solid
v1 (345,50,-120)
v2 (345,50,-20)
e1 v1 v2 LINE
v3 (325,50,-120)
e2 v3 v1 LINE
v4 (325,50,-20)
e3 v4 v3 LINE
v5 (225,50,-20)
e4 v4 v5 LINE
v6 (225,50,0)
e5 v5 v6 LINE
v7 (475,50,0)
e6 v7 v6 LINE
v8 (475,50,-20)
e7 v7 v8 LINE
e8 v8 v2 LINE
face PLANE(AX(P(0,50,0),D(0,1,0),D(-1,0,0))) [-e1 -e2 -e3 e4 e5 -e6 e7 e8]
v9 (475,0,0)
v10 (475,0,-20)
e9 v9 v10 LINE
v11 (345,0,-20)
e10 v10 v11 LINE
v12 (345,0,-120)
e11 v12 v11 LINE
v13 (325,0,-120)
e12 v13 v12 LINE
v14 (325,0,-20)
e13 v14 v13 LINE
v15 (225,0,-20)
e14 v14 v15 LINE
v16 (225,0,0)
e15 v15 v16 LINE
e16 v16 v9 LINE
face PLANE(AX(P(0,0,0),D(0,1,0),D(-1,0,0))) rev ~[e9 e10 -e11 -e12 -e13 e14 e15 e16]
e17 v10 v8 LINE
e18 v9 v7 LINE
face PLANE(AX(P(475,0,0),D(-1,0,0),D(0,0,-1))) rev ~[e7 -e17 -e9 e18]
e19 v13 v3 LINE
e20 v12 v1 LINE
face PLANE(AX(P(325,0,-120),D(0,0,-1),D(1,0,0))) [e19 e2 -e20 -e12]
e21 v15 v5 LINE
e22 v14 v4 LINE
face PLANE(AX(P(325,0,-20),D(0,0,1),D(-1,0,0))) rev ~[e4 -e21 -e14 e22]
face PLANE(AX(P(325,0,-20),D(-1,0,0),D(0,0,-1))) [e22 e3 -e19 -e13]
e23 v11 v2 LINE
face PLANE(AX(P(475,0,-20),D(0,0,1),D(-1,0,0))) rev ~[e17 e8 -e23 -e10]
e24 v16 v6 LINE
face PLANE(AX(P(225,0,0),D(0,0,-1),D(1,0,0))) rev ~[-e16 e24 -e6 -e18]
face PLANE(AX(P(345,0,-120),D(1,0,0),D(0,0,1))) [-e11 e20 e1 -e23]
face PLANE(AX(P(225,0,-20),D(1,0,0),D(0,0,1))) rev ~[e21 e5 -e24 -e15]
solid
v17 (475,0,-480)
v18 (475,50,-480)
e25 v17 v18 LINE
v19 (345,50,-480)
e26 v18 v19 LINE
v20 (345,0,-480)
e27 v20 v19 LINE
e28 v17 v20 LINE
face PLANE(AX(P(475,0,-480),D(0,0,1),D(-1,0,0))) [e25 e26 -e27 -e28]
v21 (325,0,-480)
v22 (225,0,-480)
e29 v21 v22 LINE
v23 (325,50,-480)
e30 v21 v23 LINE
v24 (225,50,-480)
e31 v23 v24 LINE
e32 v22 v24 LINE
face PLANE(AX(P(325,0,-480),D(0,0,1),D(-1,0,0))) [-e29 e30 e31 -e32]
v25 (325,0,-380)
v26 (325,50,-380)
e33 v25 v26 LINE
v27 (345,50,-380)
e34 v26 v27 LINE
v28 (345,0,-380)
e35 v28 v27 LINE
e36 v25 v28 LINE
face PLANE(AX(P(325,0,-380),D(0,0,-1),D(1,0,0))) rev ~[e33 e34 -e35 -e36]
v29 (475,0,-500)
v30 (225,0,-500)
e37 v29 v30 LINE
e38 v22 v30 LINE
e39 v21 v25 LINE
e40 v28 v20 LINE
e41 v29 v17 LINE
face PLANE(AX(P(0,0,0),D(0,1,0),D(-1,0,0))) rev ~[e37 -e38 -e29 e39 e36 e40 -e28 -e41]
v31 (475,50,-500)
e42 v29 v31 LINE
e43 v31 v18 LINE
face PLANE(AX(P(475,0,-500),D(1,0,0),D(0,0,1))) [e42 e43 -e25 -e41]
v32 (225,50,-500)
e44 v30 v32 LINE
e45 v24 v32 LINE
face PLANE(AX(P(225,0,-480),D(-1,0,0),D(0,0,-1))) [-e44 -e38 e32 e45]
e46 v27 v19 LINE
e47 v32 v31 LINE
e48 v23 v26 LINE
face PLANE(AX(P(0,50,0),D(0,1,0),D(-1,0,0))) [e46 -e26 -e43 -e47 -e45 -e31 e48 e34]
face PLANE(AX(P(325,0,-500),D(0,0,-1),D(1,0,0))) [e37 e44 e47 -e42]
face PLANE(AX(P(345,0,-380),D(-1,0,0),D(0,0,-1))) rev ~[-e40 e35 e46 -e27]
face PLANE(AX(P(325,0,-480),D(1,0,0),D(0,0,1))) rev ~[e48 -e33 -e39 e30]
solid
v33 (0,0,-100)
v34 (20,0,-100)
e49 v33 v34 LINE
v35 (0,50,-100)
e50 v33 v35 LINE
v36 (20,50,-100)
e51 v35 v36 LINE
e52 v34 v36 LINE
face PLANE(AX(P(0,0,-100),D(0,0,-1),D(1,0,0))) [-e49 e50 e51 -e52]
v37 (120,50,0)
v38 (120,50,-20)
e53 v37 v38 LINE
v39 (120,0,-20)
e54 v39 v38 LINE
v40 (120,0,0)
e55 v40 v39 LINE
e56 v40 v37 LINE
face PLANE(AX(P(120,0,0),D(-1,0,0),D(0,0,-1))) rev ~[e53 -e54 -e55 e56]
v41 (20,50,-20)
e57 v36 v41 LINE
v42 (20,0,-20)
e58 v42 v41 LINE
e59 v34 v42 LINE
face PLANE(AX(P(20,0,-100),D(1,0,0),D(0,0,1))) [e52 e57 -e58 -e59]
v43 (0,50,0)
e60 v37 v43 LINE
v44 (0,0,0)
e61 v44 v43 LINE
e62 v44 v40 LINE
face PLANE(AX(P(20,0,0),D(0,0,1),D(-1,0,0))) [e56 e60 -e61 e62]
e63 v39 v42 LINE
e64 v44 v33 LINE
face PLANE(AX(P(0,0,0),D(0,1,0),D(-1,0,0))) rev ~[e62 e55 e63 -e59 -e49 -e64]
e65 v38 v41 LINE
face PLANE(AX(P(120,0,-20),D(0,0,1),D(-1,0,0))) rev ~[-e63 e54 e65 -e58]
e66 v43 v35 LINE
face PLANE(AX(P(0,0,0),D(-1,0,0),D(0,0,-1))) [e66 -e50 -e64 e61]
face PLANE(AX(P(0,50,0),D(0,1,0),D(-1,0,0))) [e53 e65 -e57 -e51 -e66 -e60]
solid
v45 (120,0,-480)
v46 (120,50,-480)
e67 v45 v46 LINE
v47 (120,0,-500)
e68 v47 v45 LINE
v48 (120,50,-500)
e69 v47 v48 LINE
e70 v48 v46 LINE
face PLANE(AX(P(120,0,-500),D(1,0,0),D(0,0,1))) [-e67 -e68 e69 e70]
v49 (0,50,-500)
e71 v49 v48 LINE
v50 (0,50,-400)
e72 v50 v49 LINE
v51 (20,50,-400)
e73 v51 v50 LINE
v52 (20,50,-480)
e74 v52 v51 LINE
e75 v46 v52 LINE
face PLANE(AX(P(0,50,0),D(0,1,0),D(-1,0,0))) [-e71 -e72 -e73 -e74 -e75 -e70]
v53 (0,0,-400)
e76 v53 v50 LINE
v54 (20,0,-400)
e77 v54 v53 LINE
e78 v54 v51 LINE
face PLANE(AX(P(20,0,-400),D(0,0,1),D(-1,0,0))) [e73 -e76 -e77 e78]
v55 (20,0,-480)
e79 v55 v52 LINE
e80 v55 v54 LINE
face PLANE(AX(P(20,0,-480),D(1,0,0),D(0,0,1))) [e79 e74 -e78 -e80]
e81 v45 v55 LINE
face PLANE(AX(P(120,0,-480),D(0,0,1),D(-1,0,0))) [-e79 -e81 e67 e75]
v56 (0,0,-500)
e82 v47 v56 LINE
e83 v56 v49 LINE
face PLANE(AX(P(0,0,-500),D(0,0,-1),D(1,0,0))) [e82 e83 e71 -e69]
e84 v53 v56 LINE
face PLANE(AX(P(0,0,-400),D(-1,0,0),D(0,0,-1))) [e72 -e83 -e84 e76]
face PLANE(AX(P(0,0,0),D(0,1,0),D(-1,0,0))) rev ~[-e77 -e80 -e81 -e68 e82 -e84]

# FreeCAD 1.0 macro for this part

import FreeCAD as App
import Part
import Sketcher

V = App.Vector


def add_polygon(sketch, points):
    """Adds a closed chain of lines whose ends are joined by coincident constraints."""
    first, n = sketch.GeometryCount, len(points)
    for a, b in zip(points, points[1:] + points[:1]):
        sketch.addGeometry(Part.LineSegment(App.Vector(*a, 0), App.Vector(*b, 0)), False)
    for i in range(n):
        sketch.addConstraint(Sketcher.Constraint("Coincident", first + i, 2, first + (i + 1) % n, 1))

doc = App.newDocument("Part")
body = doc.addObject("PartDesign::Body", "Body")
body.AllowCompound = True

sketch1 = body.newObject("Sketcher::SketchObject", "Sketch")
sketch1.AttachmentSupport = (doc.getObject("XZ_Plane"), [""])
sketch1.MapMode = "FlatFace"
add_polygon(sketch1, [(0, -500), (0, -400), (20, -400), (20, -480), (120, -480), (120, -500)])
add_polygon(sketch1, [(0, -100), (0, 0), (120, 0), (120, -20), (20, -20), (20, -100)])
add_polygon(sketch1, [(225, 0), (475, 0), (475, -20), (345, -20), (345, -120), (325, -120), (325, -20), (225, -20)])
add_polygon(sketch1, [(225, -500), (225, -480), (325, -480), (325, -380), (345, -380), (345, -480), (475, -480), (475, -500)])
sketch1.addConstraint(Sketcher.Constraint("Vertical", 0))
sketch1.addConstraint(Sketcher.Constraint("Horizontal", 1))
sketch1.addConstraint(Sketcher.Constraint("Vertical", 2))
sketch1.addConstraint(Sketcher.Constraint("Horizontal", 3))
sketch1.addConstraint(Sketcher.Constraint("Vertical", 4))
sketch1.addConstraint(Sketcher.Constraint("Horizontal", 5))
sketch1.addConstraint(Sketcher.Constraint("Vertical", 6))
sketch1.addConstraint(Sketcher.Constraint("Horizontal", 7))
sketch1.addConstraint(Sketcher.Constraint("Vertical", 8))
sketch1.addConstraint(Sketcher.Constraint("Horizontal", 9))
sketch1.addConstraint(Sketcher.Constraint("Vertical", 10))
sketch1.addConstraint(Sketcher.Constraint("Horizontal", 11))
sketch1.addConstraint(Sketcher.Constraint("Horizontal", 12))
sketch1.addConstraint(Sketcher.Constraint("Vertical", 13))
sketch1.addConstraint(Sketcher.Constraint("Horizontal", 14))
sketch1.addConstraint(Sketcher.Constraint("Vertical", 15))
sketch1.addConstraint(Sketcher.Constraint("Horizontal", 16))
sketch1.addConstraint(Sketcher.Constraint("Vertical", 17))
sketch1.addConstraint(Sketcher.Constraint("Horizontal", 18))
sketch1.addConstraint(Sketcher.Constraint("Vertical", 19))
sketch1.addConstraint(Sketcher.Constraint("Vertical", 20))
sketch1.addConstraint(Sketcher.Constraint("Horizontal", 21))
sketch1.addConstraint(Sketcher.Constraint("Vertical", 22))
sketch1.addConstraint(Sketcher.Constraint("Horizontal", 23))
sketch1.addConstraint(Sketcher.Constraint("Vertical", 24))
sketch1.addConstraint(Sketcher.Constraint("Horizontal", 25))
sketch1.addConstraint(Sketcher.Constraint("Vertical", 26))
sketch1.addConstraint(Sketcher.Constraint("Horizontal", 27))
sketch1.addConstraint(Sketcher.Constraint("Coincident", 6, 2, -1, 1))
sketch1.addConstraint(Sketcher.Constraint("PointOnObject", 0, 2, -2))
sketch1.addConstraint(Sketcher.Constraint("PointOnObject", 12, 2, -1))
sketch1.addConstraint(Sketcher.Constraint("Horizontal", 9, 2, 13, 2))
sketch1.addConstraint(Sketcher.Constraint("Horizontal", 14, 2, 17, 2))
sketch1.addConstraint(Sketcher.Constraint("Horizontal", 3, 2, 20, 2))
sketch1.addConstraint(Sketcher.Constraint("Horizontal", 21, 2, 24, 2))
sketch1.addConstraint(Sketcher.Constraint("Horizontal", 5, 2, 26, 2))
sketch1.addConstraint(Sketcher.Constraint("Vertical", 4, 2, 7, 2))
sketch1.addConstraint(Sketcher.Constraint("Vertical", 2, 2, 9, 2))
sketch1.addConstraint(Sketcher.Constraint("Vertical", 19, 2, 20, 2))
sketch1.addConstraint(Sketcher.Constraint("Vertical", 17, 2, 21, 2))
sketch1.addConstraint(Sketcher.Constraint("Vertical", 15, 2, 23, 2))
sketch1.addConstraint(Sketcher.Constraint("Vertical", 13, 2, 25, 2))
sketch1.addConstraint(Sketcher.Constraint("Equal", 11, 16))
sketch1.addConstraint(Sketcher.Constraint("Equal", 9, 18))
sketch1.addConstraint(Sketcher.Constraint("Equal", 21, 0))
sketch1.addConstraint(Sketcher.Constraint("Equal", 23, 4))
sketch1.addConstraint(Sketcher.Constraint("Equal", 0, 6))
sketch1.addConstraint(Sketcher.Constraint("Equal", 4, 8))
sketch1.addConstraint(Sketcher.Constraint("Equal", 6, 15))
sketch1.addConstraint(Sketcher.Constraint("Equal", 17, 22))
sketch1.addConstraint(Sketcher.Constraint("DistanceX", 1, 1, 1, 2, 20.0))
sketch1.addConstraint(Sketcher.Constraint("DistanceX", 3, 1, 3, 2, 100.0))
sketch1.addConstraint(Sketcher.Constraint("DistanceX", 12, 1, 12, 2, 250.0))
sketch1.addConstraint(Sketcher.Constraint("DistanceY", 0, 2, -1, 1, 400.0))
sketch1.addConstraint(Sketcher.Constraint("DistanceX", -1, 1, 12, 2, 475.0))
pad1 = body.newObject("PartDesign::Pad", "Pad")
pad1.Profile = sketch1
pad1.Length = 50
pad1.Reversed = True

doc.recompute()
